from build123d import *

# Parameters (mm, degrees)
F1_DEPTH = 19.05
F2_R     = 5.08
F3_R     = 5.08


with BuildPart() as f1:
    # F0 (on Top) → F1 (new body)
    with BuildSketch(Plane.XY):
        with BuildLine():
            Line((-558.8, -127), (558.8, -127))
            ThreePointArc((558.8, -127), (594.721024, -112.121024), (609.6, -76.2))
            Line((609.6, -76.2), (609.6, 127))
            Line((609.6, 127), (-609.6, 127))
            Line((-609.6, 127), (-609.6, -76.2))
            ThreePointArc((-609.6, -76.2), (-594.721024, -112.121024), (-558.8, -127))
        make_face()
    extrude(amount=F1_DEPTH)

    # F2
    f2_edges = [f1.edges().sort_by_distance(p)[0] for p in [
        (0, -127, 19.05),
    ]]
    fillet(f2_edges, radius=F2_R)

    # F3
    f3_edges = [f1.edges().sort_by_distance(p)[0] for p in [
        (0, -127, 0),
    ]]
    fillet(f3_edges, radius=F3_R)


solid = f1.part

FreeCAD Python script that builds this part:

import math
import FreeCAD as App
import Part
import Sketcher
Q = App.Units.Quantity


def edges_at(feature, points):
    """Names of the edges that pass closest to the given points."""
    edges = feature.Shape.Edges
    near = lambda p: min(range(len(edges)), key=lambda i: edges[i].distToShape(Part.Vertex(*p))[0])
    return sorted({f"Edge{near(p) + 1}" for p in points})

doc = App.newDocument("Part")
params = doc.addObject("Spreadsheet::Sheet", "Params")
for row, (alias, value) in enumerate([
    ("sketch1_radius", "2.0000001 in"),
    ("sketch1_width", "44 in"),
    ("sketch1_height", "8 in"),
    ("pad1_length", "0.75 in"),
    ("fillet_radius", "0.2 in"),
    ("fillet2_radius", "0.2 in"),
], start=1):
    params.set(f"A{row}", alias)
    params.set(f"B{row}", "=" + value)
    params.setAlias(f"B{row}", alias)

body = doc.addObject("PartDesign::Body", "Body")

# Sketch on XY plane
sketch1 = body.newObject("Sketcher::SketchObject", "Sketch")
sketch1.AttachmentSupport = (doc.getObject("XY_Plane"), [""])
sketch1.MapMode = "FlatFace"
sketch1.addGeometry([
    Part.LineSegment(App.Vector(-559, -127, 0), App.Vector(559, -127, 0)),  # 0
    Part.ArcOfCircle(Part.Circle(App.Vector(559, -76, 0), App.Vector(0, 0, 1), 51), math.radians(-90), math.radians(0)),  # 1
    Part.LineSegment(App.Vector(610, -76, 0), App.Vector(610, 127, 0)),  # 2
    Part.LineSegment(App.Vector(610, 127, 0), App.Vector(-610, 127, 0)),  # 3
    Part.LineSegment(App.Vector(-610, 127, 0), App.Vector(-610, -76, 0)),  # 4
    Part.ArcOfCircle(Part.Circle(App.Vector(-559, -76, 0), App.Vector(0, 0, 1), 51), math.radians(-180), math.radians(-90)),  # 5
], False)
sketch1.addConstraint([
    Sketcher.Constraint("Tangent", 0, 2, 1, 1),
    Sketcher.Constraint("Tangent", 1, 2, 2, 1),
    Sketcher.Constraint("Coincident", 2, 2, 3, 1),
    Sketcher.Constraint("Coincident", 3, 2, 4, 1),
    Sketcher.Constraint("Tangent", 4, 2, 5, 1),
    Sketcher.Constraint("Tangent", 5, 2, 0, 1),
    Sketcher.Constraint("Horizontal", 0),
    Sketcher.Constraint("Vertical", 2),
    Sketcher.Constraint("Horizontal", 3),
    Sketcher.Constraint("Vertical", 4),
    Sketcher.Constraint("Equal", 1, 5),
    Sketcher.Constraint("Radius", 1, Q("2.0000001 in")),
    Sketcher.Constraint("DistanceX", 0, 1, 0, 2, Q("44 in")),
    Sketcher.Constraint("DistanceY", 2, 1, 2, 2, Q("8 in")),
    Sketcher.Constraint("DistanceX", -1, 1, 1, 3, Q("21.9999999 in")),
    Sketcher.Constraint("DistanceY", 1, 3, -1, 1, Q("2.9999999 in")),
])
sketch1.setExpression("Constraints[11]", "Params.sketch1_radius")
sketch1.setExpression("Constraints[12]", "Params.sketch1_width")
sketch1.setExpression("Constraints[13]", "Params.sketch1_height")
pad1 = body.newObject("PartDesign::Pad", "Pad")
pad1.Profile = sketch1
pad1.setExpression("Length", "Params.pad1_length")
doc.recompute()

fillet = body.newObject("PartDesign::Fillet", "Fillet")
fillet.Base = (pad1, edges_at(pad1, [(0, -127, 19.05)]))
fillet.setExpression("Radius", "Params.fillet_radius")
doc.recompute()

fillet2 = body.newObject("PartDesign::Fillet", "Fillet001")
fillet2.Base = (fillet, edges_at(fillet, [(0, -127, 0)]))
fillet2.setExpression("Radius", "Params.fillet2_radius")

doc.recompute()
